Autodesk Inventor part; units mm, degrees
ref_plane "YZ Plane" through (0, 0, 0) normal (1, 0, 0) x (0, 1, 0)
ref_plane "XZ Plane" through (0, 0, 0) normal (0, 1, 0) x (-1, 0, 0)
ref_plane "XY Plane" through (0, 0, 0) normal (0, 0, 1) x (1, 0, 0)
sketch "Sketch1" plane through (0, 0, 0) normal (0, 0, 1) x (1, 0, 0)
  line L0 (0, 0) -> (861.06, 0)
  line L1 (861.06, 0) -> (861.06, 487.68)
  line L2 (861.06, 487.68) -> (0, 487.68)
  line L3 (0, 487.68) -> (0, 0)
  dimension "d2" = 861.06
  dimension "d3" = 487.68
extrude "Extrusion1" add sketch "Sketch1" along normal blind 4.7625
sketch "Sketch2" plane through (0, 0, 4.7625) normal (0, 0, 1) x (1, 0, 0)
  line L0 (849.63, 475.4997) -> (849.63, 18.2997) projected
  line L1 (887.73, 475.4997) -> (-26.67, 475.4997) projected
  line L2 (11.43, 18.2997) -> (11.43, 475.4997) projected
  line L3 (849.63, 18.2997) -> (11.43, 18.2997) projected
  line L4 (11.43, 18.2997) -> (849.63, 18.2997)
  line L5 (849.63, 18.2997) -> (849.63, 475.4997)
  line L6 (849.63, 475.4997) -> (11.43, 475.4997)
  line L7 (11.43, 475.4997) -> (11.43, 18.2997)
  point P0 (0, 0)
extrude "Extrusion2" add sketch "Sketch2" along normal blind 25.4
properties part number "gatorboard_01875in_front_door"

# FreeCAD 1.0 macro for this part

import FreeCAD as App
import Part
import Sketcher
Q = App.Units.Quantity


def add_polygon(sketch, points):
    """Adds a closed chain of lines whose ends are joined by coincident constraints."""
    first, n = sketch.GeometryCount, len(points)
    for a, b in zip(points, points[1:] + points[:1]):
        sketch.addGeometry(Part.LineSegment(App.Vector(*a, 0), App.Vector(*b, 0)), False)
    for i in range(n):
        sketch.addConstraint(Sketcher.Constraint("Coincident", first + i, 2, first + (i + 1) % n, 1))

doc = App.newDocument("Part")
body = doc.addObject("PartDesign::Body", "Body")

sketch1 = body.newObject("Sketcher::SketchObject", "Sketch")
sketch1.AttachmentSupport = (doc.getObject("XY_Plane"), [""])
sketch1.MapMode = "FlatFace"
add_polygon(sketch1, [(0, 488), (0, 0), (861, 0), (861, 488)])
sketch1.addConstraint([
    Sketcher.Constraint("Vertical", 0),
    Sketcher.Constraint("Horizontal", 1),
    Sketcher.Constraint("Vertical", 2),
    Sketcher.Constraint("Horizontal", 3),
    Sketcher.Constraint("Coincident", 0, 2, -1, 1),
    Sketcher.Constraint("DistanceX", 1, 1, 1, 2, Q("33.9 in")),
    Sketcher.Constraint("DistanceY", 0, 2, 0, 1, Q("19.2 in")),
])
pad1 = body.newObject("PartDesign::Pad", "Pad")
pad1.Profile = sketch1
pad1.Length = Q("0.1875 in")

sketch2 = body.newObject("Sketcher::SketchObject", "Sketch001")
sketch2.AttachmentSupport = (doc.getObject("XY_Plane"), [""])
sketch2.MapMode = "FlatFace"
sketch2.AttachmentOffset = App.Placement(App.Vector(0, 0, 0.1875 * 25.4), App.Rotation())
add_polygon(sketch2, [(850, 18), (850, 475), (11, 475), (11, 18)])
sketch2.addConstraint([
    Sketcher.Constraint("Vertical", 0),
    Sketcher.Constraint("Horizontal", 1),
    Sketcher.Constraint("Vertical", 2),
    Sketcher.Constraint("Horizontal", 3),
    Sketcher.Constraint("DistanceX", 1, 2, 1, 1, Q("33 in")),
    Sketcher.Constraint("DistanceY", 0, 1, 0, 2, Q("18 in")),
    Sketcher.Constraint("DistanceX", -1, 1, 0, 2, Q("33.45 in")),
    Sketcher.Constraint("DistanceY", -1, 1, 0, 2, Q("475.4997 mm")),
])
pad2 = body.newObject("PartDesign::Pad", "Pad001")
pad2.Profile = sketch2
pad2.Length = Q("1 in")

doc.recompute()
